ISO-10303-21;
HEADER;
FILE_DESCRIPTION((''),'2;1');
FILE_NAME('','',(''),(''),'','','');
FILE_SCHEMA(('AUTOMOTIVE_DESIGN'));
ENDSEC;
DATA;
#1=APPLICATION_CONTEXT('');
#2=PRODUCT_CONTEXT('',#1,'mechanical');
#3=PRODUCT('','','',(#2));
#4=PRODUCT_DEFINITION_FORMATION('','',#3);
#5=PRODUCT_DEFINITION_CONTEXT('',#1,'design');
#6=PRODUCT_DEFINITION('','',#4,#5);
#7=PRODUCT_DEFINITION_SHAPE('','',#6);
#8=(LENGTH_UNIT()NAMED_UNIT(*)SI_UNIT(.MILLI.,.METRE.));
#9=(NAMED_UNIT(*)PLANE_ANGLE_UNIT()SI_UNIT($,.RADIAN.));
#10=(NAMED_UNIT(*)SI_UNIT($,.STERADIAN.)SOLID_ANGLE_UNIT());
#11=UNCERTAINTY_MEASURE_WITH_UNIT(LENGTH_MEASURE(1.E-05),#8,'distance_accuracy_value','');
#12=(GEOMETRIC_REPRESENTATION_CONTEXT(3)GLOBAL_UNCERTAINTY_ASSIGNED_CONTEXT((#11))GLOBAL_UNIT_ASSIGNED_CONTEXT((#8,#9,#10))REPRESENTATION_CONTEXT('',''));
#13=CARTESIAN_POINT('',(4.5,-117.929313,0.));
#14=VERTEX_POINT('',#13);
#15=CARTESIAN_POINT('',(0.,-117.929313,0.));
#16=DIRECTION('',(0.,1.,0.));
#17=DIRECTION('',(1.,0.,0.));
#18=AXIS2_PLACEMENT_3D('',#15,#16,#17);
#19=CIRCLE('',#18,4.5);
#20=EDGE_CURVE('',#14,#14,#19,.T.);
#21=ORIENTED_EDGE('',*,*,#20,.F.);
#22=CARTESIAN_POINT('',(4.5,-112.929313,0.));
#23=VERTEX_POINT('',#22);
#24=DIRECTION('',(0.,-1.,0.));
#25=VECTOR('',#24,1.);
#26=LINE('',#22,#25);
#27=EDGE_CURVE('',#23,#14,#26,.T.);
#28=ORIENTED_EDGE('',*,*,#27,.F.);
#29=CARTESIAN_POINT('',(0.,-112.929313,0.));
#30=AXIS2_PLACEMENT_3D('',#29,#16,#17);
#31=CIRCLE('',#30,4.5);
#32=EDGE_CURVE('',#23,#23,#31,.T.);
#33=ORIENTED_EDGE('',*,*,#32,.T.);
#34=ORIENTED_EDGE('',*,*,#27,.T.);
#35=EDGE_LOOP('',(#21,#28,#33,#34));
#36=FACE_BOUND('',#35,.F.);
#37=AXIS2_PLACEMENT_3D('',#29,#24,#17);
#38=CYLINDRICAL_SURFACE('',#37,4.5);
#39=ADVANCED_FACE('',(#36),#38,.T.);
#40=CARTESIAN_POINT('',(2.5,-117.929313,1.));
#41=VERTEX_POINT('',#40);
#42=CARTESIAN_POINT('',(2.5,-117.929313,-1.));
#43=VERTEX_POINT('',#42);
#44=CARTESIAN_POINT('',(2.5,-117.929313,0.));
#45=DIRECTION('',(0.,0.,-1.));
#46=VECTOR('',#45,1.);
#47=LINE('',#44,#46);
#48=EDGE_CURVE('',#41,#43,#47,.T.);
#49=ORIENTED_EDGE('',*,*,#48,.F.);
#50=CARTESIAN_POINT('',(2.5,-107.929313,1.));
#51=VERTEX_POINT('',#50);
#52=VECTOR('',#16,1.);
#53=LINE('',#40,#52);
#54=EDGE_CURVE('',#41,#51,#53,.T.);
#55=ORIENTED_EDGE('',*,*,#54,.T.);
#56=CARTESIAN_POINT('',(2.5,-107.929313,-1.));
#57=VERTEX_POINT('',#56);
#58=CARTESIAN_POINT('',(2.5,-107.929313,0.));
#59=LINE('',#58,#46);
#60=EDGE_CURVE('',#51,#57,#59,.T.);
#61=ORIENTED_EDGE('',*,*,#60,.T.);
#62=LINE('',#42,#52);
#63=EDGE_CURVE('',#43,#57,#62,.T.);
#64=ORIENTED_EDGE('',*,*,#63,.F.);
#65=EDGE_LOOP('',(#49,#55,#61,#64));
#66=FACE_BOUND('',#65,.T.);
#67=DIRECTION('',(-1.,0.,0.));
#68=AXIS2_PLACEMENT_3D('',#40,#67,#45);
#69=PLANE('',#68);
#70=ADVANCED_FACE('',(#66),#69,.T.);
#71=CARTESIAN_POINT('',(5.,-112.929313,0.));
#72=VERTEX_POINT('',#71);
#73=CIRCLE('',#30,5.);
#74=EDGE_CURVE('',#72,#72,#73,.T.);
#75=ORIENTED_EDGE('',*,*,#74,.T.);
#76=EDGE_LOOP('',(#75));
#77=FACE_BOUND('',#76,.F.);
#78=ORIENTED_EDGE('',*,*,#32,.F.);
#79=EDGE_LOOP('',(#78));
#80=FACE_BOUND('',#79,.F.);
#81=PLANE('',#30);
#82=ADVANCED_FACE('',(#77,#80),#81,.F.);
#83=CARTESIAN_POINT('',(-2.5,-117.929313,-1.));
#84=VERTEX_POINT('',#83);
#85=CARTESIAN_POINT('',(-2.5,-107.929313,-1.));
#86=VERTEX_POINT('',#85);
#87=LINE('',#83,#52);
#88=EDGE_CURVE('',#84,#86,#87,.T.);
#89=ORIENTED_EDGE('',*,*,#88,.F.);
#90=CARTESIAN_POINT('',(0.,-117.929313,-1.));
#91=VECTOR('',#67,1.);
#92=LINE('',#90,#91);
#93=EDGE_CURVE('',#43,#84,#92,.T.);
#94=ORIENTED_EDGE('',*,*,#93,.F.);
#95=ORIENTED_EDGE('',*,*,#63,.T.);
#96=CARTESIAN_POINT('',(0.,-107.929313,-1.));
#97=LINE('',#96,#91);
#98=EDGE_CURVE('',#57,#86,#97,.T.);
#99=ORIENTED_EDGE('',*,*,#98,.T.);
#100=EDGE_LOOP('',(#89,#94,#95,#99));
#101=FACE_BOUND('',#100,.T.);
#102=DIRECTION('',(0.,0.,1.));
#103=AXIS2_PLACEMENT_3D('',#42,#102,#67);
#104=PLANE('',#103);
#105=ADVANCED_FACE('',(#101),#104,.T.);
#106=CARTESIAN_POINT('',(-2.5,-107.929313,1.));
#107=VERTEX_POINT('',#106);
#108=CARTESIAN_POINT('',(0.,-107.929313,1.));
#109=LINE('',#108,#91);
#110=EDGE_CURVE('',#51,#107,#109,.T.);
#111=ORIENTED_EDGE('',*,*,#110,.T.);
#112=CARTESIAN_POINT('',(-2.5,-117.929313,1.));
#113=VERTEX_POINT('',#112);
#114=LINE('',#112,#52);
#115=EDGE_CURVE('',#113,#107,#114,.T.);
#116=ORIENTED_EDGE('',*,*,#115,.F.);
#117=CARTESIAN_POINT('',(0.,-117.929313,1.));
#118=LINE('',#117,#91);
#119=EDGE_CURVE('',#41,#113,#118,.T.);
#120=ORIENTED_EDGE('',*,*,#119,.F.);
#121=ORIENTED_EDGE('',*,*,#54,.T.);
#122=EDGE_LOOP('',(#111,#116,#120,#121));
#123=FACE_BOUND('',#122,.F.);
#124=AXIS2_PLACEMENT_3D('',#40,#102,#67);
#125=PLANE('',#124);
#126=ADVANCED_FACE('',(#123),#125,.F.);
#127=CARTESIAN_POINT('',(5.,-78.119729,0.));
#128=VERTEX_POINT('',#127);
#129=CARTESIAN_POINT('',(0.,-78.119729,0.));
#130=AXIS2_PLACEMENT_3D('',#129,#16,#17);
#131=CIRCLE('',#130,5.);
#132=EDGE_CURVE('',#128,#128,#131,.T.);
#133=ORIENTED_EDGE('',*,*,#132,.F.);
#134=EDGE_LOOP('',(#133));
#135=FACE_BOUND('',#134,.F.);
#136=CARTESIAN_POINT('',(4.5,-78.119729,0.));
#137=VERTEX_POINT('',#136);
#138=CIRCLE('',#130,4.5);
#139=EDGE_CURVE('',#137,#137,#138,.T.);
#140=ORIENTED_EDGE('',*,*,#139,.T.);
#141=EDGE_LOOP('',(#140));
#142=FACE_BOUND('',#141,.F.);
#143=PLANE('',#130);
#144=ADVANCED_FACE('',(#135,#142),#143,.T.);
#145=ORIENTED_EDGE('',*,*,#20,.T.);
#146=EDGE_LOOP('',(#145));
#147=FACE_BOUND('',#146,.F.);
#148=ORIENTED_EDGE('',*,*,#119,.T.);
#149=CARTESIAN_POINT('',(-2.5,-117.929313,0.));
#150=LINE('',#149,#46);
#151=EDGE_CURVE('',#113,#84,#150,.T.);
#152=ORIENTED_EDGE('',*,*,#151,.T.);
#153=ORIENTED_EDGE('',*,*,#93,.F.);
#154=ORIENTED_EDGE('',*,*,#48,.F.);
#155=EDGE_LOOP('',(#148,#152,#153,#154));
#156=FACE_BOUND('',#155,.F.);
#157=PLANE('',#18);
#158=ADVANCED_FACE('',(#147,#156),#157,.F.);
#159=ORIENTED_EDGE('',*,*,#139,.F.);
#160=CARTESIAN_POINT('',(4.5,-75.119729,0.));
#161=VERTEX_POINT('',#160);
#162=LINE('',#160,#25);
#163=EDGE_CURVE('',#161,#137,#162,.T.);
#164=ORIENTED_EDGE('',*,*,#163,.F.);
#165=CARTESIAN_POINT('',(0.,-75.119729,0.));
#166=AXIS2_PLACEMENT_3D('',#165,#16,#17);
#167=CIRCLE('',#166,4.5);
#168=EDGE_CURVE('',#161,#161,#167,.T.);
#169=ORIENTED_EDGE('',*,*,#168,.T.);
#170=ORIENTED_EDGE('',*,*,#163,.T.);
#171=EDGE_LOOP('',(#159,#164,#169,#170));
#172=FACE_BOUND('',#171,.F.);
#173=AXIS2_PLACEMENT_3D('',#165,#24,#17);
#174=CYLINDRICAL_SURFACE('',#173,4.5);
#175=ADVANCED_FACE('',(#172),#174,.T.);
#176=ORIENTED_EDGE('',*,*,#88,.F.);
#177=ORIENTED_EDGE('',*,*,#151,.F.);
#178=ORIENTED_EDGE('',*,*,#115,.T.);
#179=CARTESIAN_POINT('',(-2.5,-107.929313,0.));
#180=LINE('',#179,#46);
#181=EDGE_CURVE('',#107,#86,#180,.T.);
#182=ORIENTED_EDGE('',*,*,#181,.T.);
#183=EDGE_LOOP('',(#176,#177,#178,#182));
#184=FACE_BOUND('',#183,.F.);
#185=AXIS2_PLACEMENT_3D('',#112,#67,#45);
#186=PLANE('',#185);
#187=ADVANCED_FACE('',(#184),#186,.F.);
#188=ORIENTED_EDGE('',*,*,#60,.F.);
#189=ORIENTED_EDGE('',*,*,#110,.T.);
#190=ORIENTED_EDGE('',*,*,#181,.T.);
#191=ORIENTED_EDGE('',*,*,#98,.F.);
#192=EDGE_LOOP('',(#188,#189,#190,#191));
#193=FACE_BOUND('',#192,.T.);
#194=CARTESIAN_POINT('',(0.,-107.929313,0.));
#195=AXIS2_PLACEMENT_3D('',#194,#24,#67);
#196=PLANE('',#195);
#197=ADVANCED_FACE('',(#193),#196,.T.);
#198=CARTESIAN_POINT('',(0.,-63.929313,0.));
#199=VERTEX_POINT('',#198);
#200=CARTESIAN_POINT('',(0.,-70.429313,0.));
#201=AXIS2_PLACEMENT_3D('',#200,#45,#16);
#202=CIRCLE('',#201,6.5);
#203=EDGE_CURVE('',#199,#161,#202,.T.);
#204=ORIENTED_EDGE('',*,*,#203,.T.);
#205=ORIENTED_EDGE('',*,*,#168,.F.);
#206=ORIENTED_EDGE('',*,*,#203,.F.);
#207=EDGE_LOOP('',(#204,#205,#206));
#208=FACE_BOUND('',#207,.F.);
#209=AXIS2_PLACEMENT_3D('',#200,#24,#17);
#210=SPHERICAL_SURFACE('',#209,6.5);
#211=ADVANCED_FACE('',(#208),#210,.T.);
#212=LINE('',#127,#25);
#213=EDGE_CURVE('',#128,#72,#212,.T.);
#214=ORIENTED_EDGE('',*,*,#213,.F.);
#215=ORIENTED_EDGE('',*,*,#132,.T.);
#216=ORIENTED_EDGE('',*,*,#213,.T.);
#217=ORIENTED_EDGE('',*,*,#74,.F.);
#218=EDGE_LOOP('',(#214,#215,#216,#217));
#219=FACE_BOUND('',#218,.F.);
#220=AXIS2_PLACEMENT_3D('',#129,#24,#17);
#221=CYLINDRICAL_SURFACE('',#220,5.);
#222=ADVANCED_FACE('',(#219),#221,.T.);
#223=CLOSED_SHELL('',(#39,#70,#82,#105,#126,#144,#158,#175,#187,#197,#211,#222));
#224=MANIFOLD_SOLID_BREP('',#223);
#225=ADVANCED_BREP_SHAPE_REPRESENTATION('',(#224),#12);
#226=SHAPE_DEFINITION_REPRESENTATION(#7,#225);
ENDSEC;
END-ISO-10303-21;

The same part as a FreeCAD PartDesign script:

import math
import FreeCAD as App
import Part
import Sketcher
Q = App.Units.Quantity

doc = App.newDocument("Part")
body = doc.addObject("PartDesign::Body", "Body")

sketch1 = body.newObject("Sketcher::SketchObject", "Sketch")
sketch1.AttachmentSupport = (doc.getObject("XY_Plane"), [""])
sketch1.MapMode = "FlatFace"
sketch1.addGeometry([
    Part.LineSegment(App.Vector(4.5, -78.119729, 0), App.Vector(4.5, -75.119729, 0)),
    Part.ArcOfCircle(Part.Circle(App.Vector(0, -70.429313, 0), App.Vector(0, 0, 1), 6.5), math.radians(-46.186939), math.radians(90)),
    Part.LineSegment(App.Vector(0, -63.929313, 0), App.Vector(0, -117.929313, 0)),
    Part.LineSegment(App.Vector(0, -117.929313, 0), App.Vector(4.5, -117.929313, 0)),
    Part.LineSegment(App.Vector(4.5, -117.929313, 0), App.Vector(4.5, -112.929313, 0)),
    Part.LineSegment(App.Vector(4.5, -112.929313, 0), App.Vector(5, -112.929313, 0)),
    Part.LineSegment(App.Vector(5, -112.929313, 0), App.Vector(5, -78.119729, 0)),
    Part.LineSegment(App.Vector(5, -78.119729, 0), App.Vector(4.5, -78.119729, 0)),
], False)
sketch1.addConstraint([
    Sketcher.Constraint("Coincident", 0, 2, 1, 1),
    Sketcher.Constraint("Coincident", 1, 2, 2, 1),
    Sketcher.Constraint("Coincident", 2, 2, 3, 1),
    Sketcher.Constraint("Coincident", 3, 2, 4, 1),
    Sketcher.Constraint("Coincident", 4, 2, 5, 1),
    Sketcher.Constraint("Coincident", 5, 2, 6, 1),
    Sketcher.Constraint("Coincident", 6, 2, 7, 1),
    Sketcher.Constraint("Coincident", 7, 2, 0, 1),
    Sketcher.Constraint("Vertical", 0),
    Sketcher.Constraint("Vertical", 2),
    Sketcher.Constraint("Horizontal", 3),
    Sketcher.Constraint("Vertical", 4),
    Sketcher.Constraint("Horizontal", 5),
    Sketcher.Constraint("Vertical", 6),
    Sketcher.Constraint("Horizontal", 7),
    Sketcher.Constraint("PointOnObject", 1, 3, -2),
    Sketcher.Constraint("PointOnObject", 1, 2, -2),
    Sketcher.Constraint("Vertical", 0, 2, 3, 2),
    Sketcher.Constraint("Radius", 1, Q("6.5 mm")),
    Sketcher.Constraint("DistanceY", 0, 1, 0, 2, Q("3 mm")),
    Sketcher.Constraint("DistanceY", 2, 2, 2, 1, Q("54 mm")),
    Sketcher.Constraint("DistanceY", 4, 1, 4, 2, Q("5 mm")),
    Sketcher.Constraint("DistanceX", 3, 1, 3, 2, Q("4.5 mm")),
    Sketcher.Constraint("DistanceX", 5, 1, 5, 2, Q("0.5 mm")),
    Sketcher.Constraint("DistanceY", 0, 2, -1, 1, Q("75.119729 mm")),
])
revolution = body.newObject("PartDesign::Revolution", "Revolution")
revolution.Profile = sketch1
revolution.ReferenceAxis = (sketch1, ["V_Axis"])
revolution.Angle = 360

sketch2 = body.newObject("Sketcher::SketchObject", "Sketch001")
sketch2.AttachmentSupport = (doc.getObject("XZ_Plane"), [""])
sketch2.MapMode = "FlatFace"
sketch2.AttachmentOffset = App.Placement(App.Vector(0, 0, 117.929313), App.Rotation())
sketch2.addGeometry([
    Part.LineSegment(App.Vector(2.5, -1, 0), App.Vector(2.5, 1, 0)),
    Part.LineSegment(App.Vector(2.5, 1, 0), App.Vector(-2.5, 1, 0)),
    Part.LineSegment(App.Vector(-2.5, 1, 0), App.Vector(-2.5, -1, 0)),
    Part.LineSegment(App.Vector(-2.5, -1, 0), App.Vector(2.5, -1, 0)),
], False)
sketch2.addConstraint([
    Sketcher.Constraint("Coincident", 0, 2, 1, 1),
    Sketcher.Constraint("Coincident", 1, 2, 2, 1),
    Sketcher.Constraint("Coincident", 2, 2, 3, 1),
    Sketcher.Constraint("Coincident", 3, 2, 0, 1),
    Sketcher.Constraint("Vertical", 0),
    Sketcher.Constraint("Horizontal", 1),
    Sketcher.Constraint("Vertical", 2),
    Sketcher.Constraint("Horizontal", 3),
    Sketcher.Constraint("Symmetric", 0, 2, 2, 2, -1, 1),
    Sketcher.Constraint("DistanceX", 1, 2, 1, 1, Q("5 mm")),
    Sketcher.Constraint("DistanceY", 0, 1, 0, 2, Q("2 mm")),
])
pocket1 = body.newObject("PartDesign::Pocket", "Pocket")
pocket1.Profile = sketch2
pocket1.Length = 10

doc.recompute()
